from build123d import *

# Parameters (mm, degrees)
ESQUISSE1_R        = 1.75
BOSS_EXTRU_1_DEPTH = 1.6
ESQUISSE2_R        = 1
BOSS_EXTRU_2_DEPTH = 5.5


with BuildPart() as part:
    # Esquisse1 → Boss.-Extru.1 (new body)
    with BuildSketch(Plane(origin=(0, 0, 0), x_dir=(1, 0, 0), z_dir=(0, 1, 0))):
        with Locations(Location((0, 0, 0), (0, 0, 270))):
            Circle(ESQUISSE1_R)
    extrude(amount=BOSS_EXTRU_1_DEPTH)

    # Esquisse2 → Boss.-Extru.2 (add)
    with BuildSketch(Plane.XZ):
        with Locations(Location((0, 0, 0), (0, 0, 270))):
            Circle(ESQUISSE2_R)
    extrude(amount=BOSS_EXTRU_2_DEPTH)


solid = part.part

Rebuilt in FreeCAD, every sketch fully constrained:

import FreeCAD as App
import Part
import Sketcher

V = App.Vector

doc = App.newDocument("Part")
body = doc.addObject("PartDesign::Body", "Body")

# Sketch on XZ plane
sketch1 = doc.addObject("Sketcher::SketchObject", "Sketch")
body.addObject(sketch1)
sketch1.AttachmentSupport = (doc.XZ_Plane, [""])
sketch1.MapMode = "FlatFace"
sketch1.addGeometry(Part.Circle(V(0, 0, 0), V(0, 0, 1), 1.8), False)
sketch1.addConstraint([
    Sketcher.Constraint("Coincident", 0, 3, -1, 1),
    Sketcher.Constraint("Diameter", 0, 3.5),
])
pad1 = doc.addObject("PartDesign::Pad", "Pad")
body.addObject(pad1)
pad1.Profile = sketch1
pad1.Length = 1.6
pad1.Reversed = True

# Sketch on XZ plane
sketch2 = doc.addObject("Sketcher::SketchObject", "Sketch001")
body.addObject(sketch2)
sketch2.AttachmentSupport = (doc.XZ_Plane, [""])
sketch2.MapMode = "FlatFace"
sketch2.addGeometry(Part.Circle(V(0, 0, 0), V(0, 0, 1), 1), False)
sketch2.addConstraint([
    Sketcher.Constraint("Coincident", 0, 3, -1, 1),
    Sketcher.Constraint("Diameter", 0, 2.0),
])
pad2 = doc.addObject("PartDesign::Pad", "Pad001")
body.addObject(pad2)
pad2.Profile = sketch2
pad2.Length = 5.5

doc.recompute()
